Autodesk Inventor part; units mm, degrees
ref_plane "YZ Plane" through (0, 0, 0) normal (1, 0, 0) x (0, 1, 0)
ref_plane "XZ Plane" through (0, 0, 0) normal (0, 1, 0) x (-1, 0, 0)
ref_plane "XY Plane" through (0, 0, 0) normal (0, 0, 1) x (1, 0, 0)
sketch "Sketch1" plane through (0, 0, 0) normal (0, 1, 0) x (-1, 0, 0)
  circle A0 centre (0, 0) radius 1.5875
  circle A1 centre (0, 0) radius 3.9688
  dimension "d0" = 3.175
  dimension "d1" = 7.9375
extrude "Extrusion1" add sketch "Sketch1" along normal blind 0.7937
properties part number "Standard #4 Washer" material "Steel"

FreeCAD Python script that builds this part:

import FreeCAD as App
import Part
import Sketcher
from FreeCAD import Vector
Q = App.Units.Quantity

doc = App.newDocument("Part")
body = doc.addObject("PartDesign::Body", "Body")

# Sketch on XZ plane
sketch1 = body.newObject("Sketcher::SketchObject", "Sketch")
sketch1.AttachmentSupport = (doc.getObject("XZ_Plane"), [""])
sketch1.MapMode = "FlatFace"
sketch1.addGeometry([
    Part.Circle(Vector(0, 0, 0), Vector(0, 0, 1), 3.9688),
    Part.Circle(Vector(0, 0, 0), Vector(0, 0, 1), 1.5875),
], False)
sketch1.addConstraint([
    Sketcher.Constraint("Coincident", 0, 3, -1, 1),
    Sketcher.Constraint("Coincident", 1, 3, -1, 1),
    Sketcher.Constraint("Diameter", 0, Q("0.3125 in")),
    Sketcher.Constraint("Diameter", 1, Q("0.125 in")),
])
pad1 = body.newObject("PartDesign::Pad", "Pad")
pad1.Profile = sketch1
pad1.Length = Q("0.031248 in")
pad1.Reversed = True

doc.recompute()
